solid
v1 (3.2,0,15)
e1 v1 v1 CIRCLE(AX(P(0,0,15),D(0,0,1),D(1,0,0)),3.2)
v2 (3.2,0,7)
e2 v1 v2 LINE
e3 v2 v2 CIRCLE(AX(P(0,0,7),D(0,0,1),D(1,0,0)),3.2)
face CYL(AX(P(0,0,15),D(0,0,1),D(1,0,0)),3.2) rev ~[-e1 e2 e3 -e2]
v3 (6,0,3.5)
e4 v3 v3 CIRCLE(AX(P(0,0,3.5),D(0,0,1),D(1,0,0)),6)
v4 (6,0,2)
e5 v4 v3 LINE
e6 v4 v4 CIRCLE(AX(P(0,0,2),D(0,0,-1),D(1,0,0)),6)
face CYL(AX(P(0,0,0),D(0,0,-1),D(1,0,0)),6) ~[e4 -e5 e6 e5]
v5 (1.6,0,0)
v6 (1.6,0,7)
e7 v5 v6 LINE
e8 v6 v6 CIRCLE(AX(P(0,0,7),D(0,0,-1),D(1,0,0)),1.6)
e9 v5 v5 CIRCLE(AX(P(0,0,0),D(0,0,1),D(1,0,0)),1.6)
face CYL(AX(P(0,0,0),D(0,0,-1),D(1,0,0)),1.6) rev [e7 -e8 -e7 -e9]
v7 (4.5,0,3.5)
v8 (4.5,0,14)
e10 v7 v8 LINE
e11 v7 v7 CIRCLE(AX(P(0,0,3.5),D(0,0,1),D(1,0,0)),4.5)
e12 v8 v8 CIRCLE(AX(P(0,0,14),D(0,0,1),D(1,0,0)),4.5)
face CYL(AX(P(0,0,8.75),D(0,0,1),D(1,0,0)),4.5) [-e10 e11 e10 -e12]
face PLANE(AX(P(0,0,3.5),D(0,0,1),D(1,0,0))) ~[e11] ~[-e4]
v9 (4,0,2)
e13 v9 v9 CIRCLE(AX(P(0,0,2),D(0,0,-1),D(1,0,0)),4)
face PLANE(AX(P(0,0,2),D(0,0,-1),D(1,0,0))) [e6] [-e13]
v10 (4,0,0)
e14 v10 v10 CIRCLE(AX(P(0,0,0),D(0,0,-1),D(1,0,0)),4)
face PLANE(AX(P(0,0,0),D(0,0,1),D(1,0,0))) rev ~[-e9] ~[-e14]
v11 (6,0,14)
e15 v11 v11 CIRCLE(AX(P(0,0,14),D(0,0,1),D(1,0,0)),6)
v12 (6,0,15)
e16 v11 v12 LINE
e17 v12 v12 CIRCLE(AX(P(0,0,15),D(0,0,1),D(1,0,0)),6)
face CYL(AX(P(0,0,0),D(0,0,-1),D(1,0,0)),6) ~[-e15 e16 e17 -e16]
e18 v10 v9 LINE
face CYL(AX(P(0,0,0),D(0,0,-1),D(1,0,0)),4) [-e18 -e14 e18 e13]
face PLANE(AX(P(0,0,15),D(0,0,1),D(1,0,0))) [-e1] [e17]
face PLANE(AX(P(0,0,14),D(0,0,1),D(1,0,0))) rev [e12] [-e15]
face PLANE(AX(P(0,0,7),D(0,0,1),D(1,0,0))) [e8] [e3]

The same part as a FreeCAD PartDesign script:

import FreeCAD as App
import Part
import Sketcher

V = App.Vector
Q = App.Units.Quantity


def add_polygon(sketch, points):
    """Adds a closed chain of lines whose ends are joined by coincident constraints."""
    first, n = sketch.GeometryCount, len(points)
    for a, b in zip(points, points[1:] + points[:1]):
        sketch.addGeometry(Part.LineSegment(App.Vector(*a, 0), App.Vector(*b, 0)), False)
    for i in range(n):
        sketch.addConstraint(Sketcher.Constraint("Coincident", first + i, 2, first + (i + 1) % n, 1))

doc = App.newDocument("Part")
body = doc.addObject("PartDesign::Body", "Body")

# Sketch on XZ plane
sketch1 = body.newObject("Sketcher::SketchObject", "Sketch")
sketch1.AttachmentSupport = (doc.getObject("XZ_Plane"), [""])
sketch1.MapMode = "FlatFace"
add_polygon(sketch1, [(4.5, 14), (4.5, 3.5), (6, 3.5), (6, 14)])  # lines 0-3
sketch1.addConstraint([
    Sketcher.Constraint("Vertical", 0),
    Sketcher.Constraint("Horizontal", 1),
    Sketcher.Constraint("Vertical", 2),
    Sketcher.Constraint("Horizontal", 3),
    Sketcher.Constraint("DistanceX", 1, 1, 1, 2, Q("1.5 mm")),
    Sketcher.Constraint("DistanceY", 0, 2, 0, 1, Q("10.5 mm")),
    Sketcher.Constraint("DistanceX", -1, 1, 1, 2, Q("6 mm")),
    Sketcher.Constraint("DistanceY", -1, 1, 2, 2, Q("14 mm")),
])
revolution = body.newObject("PartDesign::Revolution", "Revolution")
revolution.Profile = sketch1
revolution.ReferenceAxis = (sketch1, ["V_Axis"])
revolution.Angle = 360
body2 = doc.addObject("PartDesign::Body", "Body001")

# Sketch on XY plane
sketch2 = body2.newObject("Sketcher::SketchObject", "Sketch001")
sketch2.AttachmentSupport = (doc.getObject("XY_Plane001"), [""])
sketch2.MapMode = "FlatFace"
sketch2.addGeometry([
    Part.Circle(V(0, 0, 0), V(0, 0, 1), 6),
    Part.Circle(V(0, 0, 0), V(0, 0, 1), 1.6),
], False)
sketch2.addConstraint([
    Sketcher.Constraint("Coincident", 0, 3, -1, 1),
    Sketcher.Constraint("Coincident", 1, 3, -1, 1),
    Sketcher.Constraint("Diameter", 0, Q("12 mm")),
    Sketcher.Constraint("Diameter", 1, Q("3.2 mm")),
])
pad1 = body2.newObject("PartDesign::Pad", "Pad")
pad1.Profile = sketch2
pad1.Length = 15

# Sketch on XY plane
sketch3 = body2.newObject("Sketcher::SketchObject", "Sketch002")
sketch3.AttachmentSupport = (doc.getObject("XY_Plane001"), [""])
sketch3.MapMode = "FlatFace"
sketch3.AttachmentOffset = App.Placement(V(0, 0, 15), App.Rotation())
sketch3.addGeometry(Part.Circle(V(0, 0, 0), V(0, 0, 1), 3.2), False)
sketch3.addConstraint([
    Sketcher.Constraint("Coincident", 0, 3, -1, 1),
    Sketcher.Constraint("Diameter", 0, Q("6.4 mm")),
])
pocket1 = body2.newObject("PartDesign::Pocket", "Pocket")
pocket1.Profile = sketch3
pocket1.Length = 8

# Sketch on XY plane
sketch4 = body2.newObject("Sketcher::SketchObject", "Sketch003")
sketch4.AttachmentSupport = (doc.getObject("XY_Plane001"), [""])
sketch4.MapMode = "FlatFace"
sketch4.addGeometry([
    Part.Circle(V(0, 0, 0), V(0, 0, 1), 6),
    Part.Circle(V(0, 0, 0), V(0, 0, 1), 4),
], False)
sketch4.addConstraint([
    Sketcher.Constraint("Coincident", 0, 3, -1, 1),
    Sketcher.Constraint("Coincident", 1, 3, -1, 1),
    Sketcher.Constraint("Diameter", 0, Q("12 mm")),
    Sketcher.Constraint("Diameter", 1, Q("8 mm")),
])
pocket2 = body2.newObject("PartDesign::Pocket", "Pocket001")
pocket2.Profile = sketch4
pocket2.Length = 2
pocket2.Reversed = True
doc.recompute()

boolean = body2.newObject("PartDesign::Boolean", "Boolean")
boolean.Type = "Cut"
boolean.addObjects([body])

doc.recompute()
